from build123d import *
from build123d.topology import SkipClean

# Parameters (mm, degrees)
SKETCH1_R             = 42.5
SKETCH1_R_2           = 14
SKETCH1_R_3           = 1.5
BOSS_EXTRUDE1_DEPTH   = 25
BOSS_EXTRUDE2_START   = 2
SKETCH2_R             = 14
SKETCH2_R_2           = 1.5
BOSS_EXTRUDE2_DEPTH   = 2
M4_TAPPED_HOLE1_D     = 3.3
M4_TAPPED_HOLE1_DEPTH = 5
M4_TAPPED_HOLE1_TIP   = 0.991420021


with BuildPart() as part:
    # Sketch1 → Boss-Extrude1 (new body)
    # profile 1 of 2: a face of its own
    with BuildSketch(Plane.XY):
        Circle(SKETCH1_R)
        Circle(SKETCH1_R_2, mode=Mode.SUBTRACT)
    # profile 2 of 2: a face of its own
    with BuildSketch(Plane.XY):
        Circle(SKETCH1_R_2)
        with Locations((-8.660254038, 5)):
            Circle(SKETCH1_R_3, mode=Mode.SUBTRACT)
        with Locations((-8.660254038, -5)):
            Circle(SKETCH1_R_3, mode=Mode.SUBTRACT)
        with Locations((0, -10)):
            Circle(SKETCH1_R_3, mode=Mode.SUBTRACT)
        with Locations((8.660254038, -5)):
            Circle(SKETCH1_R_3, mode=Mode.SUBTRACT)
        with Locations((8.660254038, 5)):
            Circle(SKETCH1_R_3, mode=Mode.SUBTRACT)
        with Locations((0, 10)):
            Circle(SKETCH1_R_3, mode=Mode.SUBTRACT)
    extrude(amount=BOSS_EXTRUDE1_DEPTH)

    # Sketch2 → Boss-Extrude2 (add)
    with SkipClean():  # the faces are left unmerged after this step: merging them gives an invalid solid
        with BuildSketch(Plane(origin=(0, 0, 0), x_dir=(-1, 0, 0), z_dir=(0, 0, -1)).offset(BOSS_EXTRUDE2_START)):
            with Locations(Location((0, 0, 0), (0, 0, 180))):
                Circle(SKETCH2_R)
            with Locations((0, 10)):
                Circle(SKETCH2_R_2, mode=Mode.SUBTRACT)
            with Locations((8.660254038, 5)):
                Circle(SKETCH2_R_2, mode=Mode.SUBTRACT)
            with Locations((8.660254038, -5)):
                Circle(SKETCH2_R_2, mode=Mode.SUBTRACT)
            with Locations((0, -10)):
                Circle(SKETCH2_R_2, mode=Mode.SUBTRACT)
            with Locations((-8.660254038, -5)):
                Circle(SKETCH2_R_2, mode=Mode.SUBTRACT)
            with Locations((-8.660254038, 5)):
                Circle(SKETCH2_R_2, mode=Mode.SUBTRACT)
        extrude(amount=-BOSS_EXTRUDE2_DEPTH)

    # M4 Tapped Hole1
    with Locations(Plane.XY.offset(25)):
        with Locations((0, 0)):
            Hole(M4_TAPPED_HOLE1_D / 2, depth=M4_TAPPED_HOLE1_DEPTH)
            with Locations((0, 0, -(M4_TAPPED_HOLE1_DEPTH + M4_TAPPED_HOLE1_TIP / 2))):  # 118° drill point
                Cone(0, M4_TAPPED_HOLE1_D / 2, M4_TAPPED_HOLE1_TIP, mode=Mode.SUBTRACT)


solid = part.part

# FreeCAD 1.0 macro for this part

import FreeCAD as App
import Part
import Sketcher

V = App.Vector

doc = App.newDocument("Part")
body = doc.addObject("PartDesign::Body", "Body")

sketch1 = body.newObject("Sketcher::SketchObject", "Sketch")
sketch1.AttachmentSupport = (doc.getObject("XY_Plane"), [""])
sketch1.MapMode = "FlatFace"
sketch1.addGeometry(Part.Circle(V(0, 0, 0), V(0, 0, 1), 42.5), False)
sketch1.addGeometry(Part.Circle(V(0, 10, 0), V(0, 0, 1), 1.5), False)
sketch1.addGeometry(Part.Circle(V(-8.7, -5, 0), V(0, 0, 1), 1.5), False)
sketch1.addGeometry(Part.Circle(V(0, -10, 0), V(0, 0, 1), 1.5), False)
sketch1.addGeometry(Part.Circle(V(8.7, -5, 0), V(0, 0, 1), 1.5), False)
sketch1.addGeometry(Part.Circle(V(-8.7, 5, 0), V(0, 0, 1), 1.5), False)
sketch1.addGeometry(Part.Circle(V(8.7, 5, 0), V(0, 0, 1), 1.5), False)
sketch1.addConstraint(Sketcher.Constraint("Coincident", 0, 3, -1, 1))
sketch1.addConstraint(Sketcher.Constraint("Equal", 1, 2))
sketch1.addConstraint(Sketcher.Constraint("Equal", 2, 3))
sketch1.addConstraint(Sketcher.Constraint("Equal", 3, 4))
sketch1.addConstraint(Sketcher.Constraint("Equal", 4, 5))
sketch1.addConstraint(Sketcher.Constraint("Equal", 5, 6))
sketch1.addConstraint(Sketcher.Constraint("Symmetric", 1, 3, 3, 3, -1, 1))
sketch1.addConstraint(Sketcher.Constraint("Symmetric", 4, 3, 5, 3, -1, 1))
sketch1.addConstraint(Sketcher.Constraint("Symmetric", 2, 3, 6, 3, -1, 1))
sketch1.addConstraint(Sketcher.Constraint("Symmetric", 2, 3, 4, 3, -2))
sketch1.addConstraint(Sketcher.Constraint("PointOnObject", 1, 3, -2))
sketch1.addConstraint(Sketcher.Constraint("Diameter", 0, 85.0))
sketch1.addConstraint(Sketcher.Constraint("Diameter", 1, 3.0))
sketch1.addConstraint(Sketcher.Constraint("DistanceY", -1, 1, 1, 3, 10.0))
sketch1.addConstraint(Sketcher.Constraint("DistanceY", 2, 3, -1, 1, 5.0))
sketch1.addConstraint(Sketcher.Constraint("DistanceX", 2, 3, 4, 3, 17.320508))
pad1 = body.newObject("PartDesign::Pad", "Pad")
pad1.Profile = sketch1
pad1.Length = 25

sketch2 = body.newObject("Sketcher::SketchObject", "Sketch001")
sketch2.AttachmentSupport = (doc.getObject("XY_Plane"), [""])
sketch2.MapMode = "FlatFace"
sketch2.AttachmentOffset = App.Placement(V(0, 0, -2), App.Rotation())
sketch2.addGeometry(Part.Circle(V(0, 0, 0), V(0, 0, 1), 14), False)
sketch2.addGeometry(Part.Circle(V(-8.7, 5, 0), V(0, 0, 1), 1.5), False)
sketch2.addGeometry(Part.Circle(V(0, 10, 0), V(0, 0, 1), 1.5), False)
sketch2.addGeometry(Part.Circle(V(8.7, 5, 0), V(0, 0, 1), 1.5), False)
sketch2.addGeometry(Part.Circle(V(-8.7, -5, 0), V(0, 0, 1), 1.5), False)
sketch2.addGeometry(Part.Circle(V(0, -10, 0), V(0, 0, 1), 1.5), False)
sketch2.addGeometry(Part.Circle(V(8.7, -5, 0), V(0, 0, 1), 1.5), False)
sketch2.addConstraint(Sketcher.Constraint("Coincident", 0, 3, -1, 1))
sketch2.addConstraint(Sketcher.Constraint("Equal", 1, 2))
sketch2.addConstraint(Sketcher.Constraint("Equal", 2, 3))
sketch2.addConstraint(Sketcher.Constraint("Equal", 3, 4))
sketch2.addConstraint(Sketcher.Constraint("Equal", 4, 5))
sketch2.addConstraint(Sketcher.Constraint("Equal", 5, 6))
sketch2.addConstraint(Sketcher.Constraint("Symmetric", 3, 3, 4, 3, -1, 1))
sketch2.addConstraint(Sketcher.Constraint("Symmetric", 2, 3, 5, 3, -1, 1))
sketch2.addConstraint(Sketcher.Constraint("Symmetric", 1, 3, 6, 3, -1, 1))
sketch2.addConstraint(Sketcher.Constraint("Symmetric", 1, 3, 3, 3, -2))
sketch2.addConstraint(Sketcher.Constraint("PointOnObject", 2, 3, -2))
sketch2.addConstraint(Sketcher.Constraint("Diameter", 0, 28.0))
sketch2.addConstraint(Sketcher.Constraint("Diameter", 1, 3.0))
sketch2.addConstraint(Sketcher.Constraint("DistanceY", -1, 1, 1, 3, 5.0))
sketch2.addConstraint(Sketcher.Constraint("DistanceY", -1, 1, 2, 3, 10.0))
sketch2.addConstraint(Sketcher.Constraint("DistanceX", 1, 3, 3, 3, 17.320508))
pad2 = body.newObject("PartDesign::Pad", "Pad001")
pad2.Profile = sketch2
pad2.Length = 2

sketch3 = body.newObject("Sketcher::SketchObject", "Sketch002")
sketch3.AttachmentSupport = (doc.getObject("XY_Plane"), [""])
sketch3.MapMode = "FlatFace"
sketch3.AttachmentOffset = App.Placement(V(0, 0, 25), App.Rotation())
sketch3.addGeometry(Part.Circle(V(0, 0, 0), V(0, 0, 1), 1.6), False)
sketch3.addConstraint(Sketcher.Constraint("Coincident", 0, 3, -1, 1))
sketch3.addConstraint(Sketcher.Constraint("Diameter", 0, 3.3))
doc.recompute()
hole = body.newObject("PartDesign::Hole", "Hole")
hole.Profile = sketch3
hole.ThreadType = "None"
hole.Diameter = 3.3
hole.DepthType = "Dimension"
hole.Depth = 5
hole.DrillPoint = "Angled"
hole.DrillPointAngle = 118

doc.recompute()
